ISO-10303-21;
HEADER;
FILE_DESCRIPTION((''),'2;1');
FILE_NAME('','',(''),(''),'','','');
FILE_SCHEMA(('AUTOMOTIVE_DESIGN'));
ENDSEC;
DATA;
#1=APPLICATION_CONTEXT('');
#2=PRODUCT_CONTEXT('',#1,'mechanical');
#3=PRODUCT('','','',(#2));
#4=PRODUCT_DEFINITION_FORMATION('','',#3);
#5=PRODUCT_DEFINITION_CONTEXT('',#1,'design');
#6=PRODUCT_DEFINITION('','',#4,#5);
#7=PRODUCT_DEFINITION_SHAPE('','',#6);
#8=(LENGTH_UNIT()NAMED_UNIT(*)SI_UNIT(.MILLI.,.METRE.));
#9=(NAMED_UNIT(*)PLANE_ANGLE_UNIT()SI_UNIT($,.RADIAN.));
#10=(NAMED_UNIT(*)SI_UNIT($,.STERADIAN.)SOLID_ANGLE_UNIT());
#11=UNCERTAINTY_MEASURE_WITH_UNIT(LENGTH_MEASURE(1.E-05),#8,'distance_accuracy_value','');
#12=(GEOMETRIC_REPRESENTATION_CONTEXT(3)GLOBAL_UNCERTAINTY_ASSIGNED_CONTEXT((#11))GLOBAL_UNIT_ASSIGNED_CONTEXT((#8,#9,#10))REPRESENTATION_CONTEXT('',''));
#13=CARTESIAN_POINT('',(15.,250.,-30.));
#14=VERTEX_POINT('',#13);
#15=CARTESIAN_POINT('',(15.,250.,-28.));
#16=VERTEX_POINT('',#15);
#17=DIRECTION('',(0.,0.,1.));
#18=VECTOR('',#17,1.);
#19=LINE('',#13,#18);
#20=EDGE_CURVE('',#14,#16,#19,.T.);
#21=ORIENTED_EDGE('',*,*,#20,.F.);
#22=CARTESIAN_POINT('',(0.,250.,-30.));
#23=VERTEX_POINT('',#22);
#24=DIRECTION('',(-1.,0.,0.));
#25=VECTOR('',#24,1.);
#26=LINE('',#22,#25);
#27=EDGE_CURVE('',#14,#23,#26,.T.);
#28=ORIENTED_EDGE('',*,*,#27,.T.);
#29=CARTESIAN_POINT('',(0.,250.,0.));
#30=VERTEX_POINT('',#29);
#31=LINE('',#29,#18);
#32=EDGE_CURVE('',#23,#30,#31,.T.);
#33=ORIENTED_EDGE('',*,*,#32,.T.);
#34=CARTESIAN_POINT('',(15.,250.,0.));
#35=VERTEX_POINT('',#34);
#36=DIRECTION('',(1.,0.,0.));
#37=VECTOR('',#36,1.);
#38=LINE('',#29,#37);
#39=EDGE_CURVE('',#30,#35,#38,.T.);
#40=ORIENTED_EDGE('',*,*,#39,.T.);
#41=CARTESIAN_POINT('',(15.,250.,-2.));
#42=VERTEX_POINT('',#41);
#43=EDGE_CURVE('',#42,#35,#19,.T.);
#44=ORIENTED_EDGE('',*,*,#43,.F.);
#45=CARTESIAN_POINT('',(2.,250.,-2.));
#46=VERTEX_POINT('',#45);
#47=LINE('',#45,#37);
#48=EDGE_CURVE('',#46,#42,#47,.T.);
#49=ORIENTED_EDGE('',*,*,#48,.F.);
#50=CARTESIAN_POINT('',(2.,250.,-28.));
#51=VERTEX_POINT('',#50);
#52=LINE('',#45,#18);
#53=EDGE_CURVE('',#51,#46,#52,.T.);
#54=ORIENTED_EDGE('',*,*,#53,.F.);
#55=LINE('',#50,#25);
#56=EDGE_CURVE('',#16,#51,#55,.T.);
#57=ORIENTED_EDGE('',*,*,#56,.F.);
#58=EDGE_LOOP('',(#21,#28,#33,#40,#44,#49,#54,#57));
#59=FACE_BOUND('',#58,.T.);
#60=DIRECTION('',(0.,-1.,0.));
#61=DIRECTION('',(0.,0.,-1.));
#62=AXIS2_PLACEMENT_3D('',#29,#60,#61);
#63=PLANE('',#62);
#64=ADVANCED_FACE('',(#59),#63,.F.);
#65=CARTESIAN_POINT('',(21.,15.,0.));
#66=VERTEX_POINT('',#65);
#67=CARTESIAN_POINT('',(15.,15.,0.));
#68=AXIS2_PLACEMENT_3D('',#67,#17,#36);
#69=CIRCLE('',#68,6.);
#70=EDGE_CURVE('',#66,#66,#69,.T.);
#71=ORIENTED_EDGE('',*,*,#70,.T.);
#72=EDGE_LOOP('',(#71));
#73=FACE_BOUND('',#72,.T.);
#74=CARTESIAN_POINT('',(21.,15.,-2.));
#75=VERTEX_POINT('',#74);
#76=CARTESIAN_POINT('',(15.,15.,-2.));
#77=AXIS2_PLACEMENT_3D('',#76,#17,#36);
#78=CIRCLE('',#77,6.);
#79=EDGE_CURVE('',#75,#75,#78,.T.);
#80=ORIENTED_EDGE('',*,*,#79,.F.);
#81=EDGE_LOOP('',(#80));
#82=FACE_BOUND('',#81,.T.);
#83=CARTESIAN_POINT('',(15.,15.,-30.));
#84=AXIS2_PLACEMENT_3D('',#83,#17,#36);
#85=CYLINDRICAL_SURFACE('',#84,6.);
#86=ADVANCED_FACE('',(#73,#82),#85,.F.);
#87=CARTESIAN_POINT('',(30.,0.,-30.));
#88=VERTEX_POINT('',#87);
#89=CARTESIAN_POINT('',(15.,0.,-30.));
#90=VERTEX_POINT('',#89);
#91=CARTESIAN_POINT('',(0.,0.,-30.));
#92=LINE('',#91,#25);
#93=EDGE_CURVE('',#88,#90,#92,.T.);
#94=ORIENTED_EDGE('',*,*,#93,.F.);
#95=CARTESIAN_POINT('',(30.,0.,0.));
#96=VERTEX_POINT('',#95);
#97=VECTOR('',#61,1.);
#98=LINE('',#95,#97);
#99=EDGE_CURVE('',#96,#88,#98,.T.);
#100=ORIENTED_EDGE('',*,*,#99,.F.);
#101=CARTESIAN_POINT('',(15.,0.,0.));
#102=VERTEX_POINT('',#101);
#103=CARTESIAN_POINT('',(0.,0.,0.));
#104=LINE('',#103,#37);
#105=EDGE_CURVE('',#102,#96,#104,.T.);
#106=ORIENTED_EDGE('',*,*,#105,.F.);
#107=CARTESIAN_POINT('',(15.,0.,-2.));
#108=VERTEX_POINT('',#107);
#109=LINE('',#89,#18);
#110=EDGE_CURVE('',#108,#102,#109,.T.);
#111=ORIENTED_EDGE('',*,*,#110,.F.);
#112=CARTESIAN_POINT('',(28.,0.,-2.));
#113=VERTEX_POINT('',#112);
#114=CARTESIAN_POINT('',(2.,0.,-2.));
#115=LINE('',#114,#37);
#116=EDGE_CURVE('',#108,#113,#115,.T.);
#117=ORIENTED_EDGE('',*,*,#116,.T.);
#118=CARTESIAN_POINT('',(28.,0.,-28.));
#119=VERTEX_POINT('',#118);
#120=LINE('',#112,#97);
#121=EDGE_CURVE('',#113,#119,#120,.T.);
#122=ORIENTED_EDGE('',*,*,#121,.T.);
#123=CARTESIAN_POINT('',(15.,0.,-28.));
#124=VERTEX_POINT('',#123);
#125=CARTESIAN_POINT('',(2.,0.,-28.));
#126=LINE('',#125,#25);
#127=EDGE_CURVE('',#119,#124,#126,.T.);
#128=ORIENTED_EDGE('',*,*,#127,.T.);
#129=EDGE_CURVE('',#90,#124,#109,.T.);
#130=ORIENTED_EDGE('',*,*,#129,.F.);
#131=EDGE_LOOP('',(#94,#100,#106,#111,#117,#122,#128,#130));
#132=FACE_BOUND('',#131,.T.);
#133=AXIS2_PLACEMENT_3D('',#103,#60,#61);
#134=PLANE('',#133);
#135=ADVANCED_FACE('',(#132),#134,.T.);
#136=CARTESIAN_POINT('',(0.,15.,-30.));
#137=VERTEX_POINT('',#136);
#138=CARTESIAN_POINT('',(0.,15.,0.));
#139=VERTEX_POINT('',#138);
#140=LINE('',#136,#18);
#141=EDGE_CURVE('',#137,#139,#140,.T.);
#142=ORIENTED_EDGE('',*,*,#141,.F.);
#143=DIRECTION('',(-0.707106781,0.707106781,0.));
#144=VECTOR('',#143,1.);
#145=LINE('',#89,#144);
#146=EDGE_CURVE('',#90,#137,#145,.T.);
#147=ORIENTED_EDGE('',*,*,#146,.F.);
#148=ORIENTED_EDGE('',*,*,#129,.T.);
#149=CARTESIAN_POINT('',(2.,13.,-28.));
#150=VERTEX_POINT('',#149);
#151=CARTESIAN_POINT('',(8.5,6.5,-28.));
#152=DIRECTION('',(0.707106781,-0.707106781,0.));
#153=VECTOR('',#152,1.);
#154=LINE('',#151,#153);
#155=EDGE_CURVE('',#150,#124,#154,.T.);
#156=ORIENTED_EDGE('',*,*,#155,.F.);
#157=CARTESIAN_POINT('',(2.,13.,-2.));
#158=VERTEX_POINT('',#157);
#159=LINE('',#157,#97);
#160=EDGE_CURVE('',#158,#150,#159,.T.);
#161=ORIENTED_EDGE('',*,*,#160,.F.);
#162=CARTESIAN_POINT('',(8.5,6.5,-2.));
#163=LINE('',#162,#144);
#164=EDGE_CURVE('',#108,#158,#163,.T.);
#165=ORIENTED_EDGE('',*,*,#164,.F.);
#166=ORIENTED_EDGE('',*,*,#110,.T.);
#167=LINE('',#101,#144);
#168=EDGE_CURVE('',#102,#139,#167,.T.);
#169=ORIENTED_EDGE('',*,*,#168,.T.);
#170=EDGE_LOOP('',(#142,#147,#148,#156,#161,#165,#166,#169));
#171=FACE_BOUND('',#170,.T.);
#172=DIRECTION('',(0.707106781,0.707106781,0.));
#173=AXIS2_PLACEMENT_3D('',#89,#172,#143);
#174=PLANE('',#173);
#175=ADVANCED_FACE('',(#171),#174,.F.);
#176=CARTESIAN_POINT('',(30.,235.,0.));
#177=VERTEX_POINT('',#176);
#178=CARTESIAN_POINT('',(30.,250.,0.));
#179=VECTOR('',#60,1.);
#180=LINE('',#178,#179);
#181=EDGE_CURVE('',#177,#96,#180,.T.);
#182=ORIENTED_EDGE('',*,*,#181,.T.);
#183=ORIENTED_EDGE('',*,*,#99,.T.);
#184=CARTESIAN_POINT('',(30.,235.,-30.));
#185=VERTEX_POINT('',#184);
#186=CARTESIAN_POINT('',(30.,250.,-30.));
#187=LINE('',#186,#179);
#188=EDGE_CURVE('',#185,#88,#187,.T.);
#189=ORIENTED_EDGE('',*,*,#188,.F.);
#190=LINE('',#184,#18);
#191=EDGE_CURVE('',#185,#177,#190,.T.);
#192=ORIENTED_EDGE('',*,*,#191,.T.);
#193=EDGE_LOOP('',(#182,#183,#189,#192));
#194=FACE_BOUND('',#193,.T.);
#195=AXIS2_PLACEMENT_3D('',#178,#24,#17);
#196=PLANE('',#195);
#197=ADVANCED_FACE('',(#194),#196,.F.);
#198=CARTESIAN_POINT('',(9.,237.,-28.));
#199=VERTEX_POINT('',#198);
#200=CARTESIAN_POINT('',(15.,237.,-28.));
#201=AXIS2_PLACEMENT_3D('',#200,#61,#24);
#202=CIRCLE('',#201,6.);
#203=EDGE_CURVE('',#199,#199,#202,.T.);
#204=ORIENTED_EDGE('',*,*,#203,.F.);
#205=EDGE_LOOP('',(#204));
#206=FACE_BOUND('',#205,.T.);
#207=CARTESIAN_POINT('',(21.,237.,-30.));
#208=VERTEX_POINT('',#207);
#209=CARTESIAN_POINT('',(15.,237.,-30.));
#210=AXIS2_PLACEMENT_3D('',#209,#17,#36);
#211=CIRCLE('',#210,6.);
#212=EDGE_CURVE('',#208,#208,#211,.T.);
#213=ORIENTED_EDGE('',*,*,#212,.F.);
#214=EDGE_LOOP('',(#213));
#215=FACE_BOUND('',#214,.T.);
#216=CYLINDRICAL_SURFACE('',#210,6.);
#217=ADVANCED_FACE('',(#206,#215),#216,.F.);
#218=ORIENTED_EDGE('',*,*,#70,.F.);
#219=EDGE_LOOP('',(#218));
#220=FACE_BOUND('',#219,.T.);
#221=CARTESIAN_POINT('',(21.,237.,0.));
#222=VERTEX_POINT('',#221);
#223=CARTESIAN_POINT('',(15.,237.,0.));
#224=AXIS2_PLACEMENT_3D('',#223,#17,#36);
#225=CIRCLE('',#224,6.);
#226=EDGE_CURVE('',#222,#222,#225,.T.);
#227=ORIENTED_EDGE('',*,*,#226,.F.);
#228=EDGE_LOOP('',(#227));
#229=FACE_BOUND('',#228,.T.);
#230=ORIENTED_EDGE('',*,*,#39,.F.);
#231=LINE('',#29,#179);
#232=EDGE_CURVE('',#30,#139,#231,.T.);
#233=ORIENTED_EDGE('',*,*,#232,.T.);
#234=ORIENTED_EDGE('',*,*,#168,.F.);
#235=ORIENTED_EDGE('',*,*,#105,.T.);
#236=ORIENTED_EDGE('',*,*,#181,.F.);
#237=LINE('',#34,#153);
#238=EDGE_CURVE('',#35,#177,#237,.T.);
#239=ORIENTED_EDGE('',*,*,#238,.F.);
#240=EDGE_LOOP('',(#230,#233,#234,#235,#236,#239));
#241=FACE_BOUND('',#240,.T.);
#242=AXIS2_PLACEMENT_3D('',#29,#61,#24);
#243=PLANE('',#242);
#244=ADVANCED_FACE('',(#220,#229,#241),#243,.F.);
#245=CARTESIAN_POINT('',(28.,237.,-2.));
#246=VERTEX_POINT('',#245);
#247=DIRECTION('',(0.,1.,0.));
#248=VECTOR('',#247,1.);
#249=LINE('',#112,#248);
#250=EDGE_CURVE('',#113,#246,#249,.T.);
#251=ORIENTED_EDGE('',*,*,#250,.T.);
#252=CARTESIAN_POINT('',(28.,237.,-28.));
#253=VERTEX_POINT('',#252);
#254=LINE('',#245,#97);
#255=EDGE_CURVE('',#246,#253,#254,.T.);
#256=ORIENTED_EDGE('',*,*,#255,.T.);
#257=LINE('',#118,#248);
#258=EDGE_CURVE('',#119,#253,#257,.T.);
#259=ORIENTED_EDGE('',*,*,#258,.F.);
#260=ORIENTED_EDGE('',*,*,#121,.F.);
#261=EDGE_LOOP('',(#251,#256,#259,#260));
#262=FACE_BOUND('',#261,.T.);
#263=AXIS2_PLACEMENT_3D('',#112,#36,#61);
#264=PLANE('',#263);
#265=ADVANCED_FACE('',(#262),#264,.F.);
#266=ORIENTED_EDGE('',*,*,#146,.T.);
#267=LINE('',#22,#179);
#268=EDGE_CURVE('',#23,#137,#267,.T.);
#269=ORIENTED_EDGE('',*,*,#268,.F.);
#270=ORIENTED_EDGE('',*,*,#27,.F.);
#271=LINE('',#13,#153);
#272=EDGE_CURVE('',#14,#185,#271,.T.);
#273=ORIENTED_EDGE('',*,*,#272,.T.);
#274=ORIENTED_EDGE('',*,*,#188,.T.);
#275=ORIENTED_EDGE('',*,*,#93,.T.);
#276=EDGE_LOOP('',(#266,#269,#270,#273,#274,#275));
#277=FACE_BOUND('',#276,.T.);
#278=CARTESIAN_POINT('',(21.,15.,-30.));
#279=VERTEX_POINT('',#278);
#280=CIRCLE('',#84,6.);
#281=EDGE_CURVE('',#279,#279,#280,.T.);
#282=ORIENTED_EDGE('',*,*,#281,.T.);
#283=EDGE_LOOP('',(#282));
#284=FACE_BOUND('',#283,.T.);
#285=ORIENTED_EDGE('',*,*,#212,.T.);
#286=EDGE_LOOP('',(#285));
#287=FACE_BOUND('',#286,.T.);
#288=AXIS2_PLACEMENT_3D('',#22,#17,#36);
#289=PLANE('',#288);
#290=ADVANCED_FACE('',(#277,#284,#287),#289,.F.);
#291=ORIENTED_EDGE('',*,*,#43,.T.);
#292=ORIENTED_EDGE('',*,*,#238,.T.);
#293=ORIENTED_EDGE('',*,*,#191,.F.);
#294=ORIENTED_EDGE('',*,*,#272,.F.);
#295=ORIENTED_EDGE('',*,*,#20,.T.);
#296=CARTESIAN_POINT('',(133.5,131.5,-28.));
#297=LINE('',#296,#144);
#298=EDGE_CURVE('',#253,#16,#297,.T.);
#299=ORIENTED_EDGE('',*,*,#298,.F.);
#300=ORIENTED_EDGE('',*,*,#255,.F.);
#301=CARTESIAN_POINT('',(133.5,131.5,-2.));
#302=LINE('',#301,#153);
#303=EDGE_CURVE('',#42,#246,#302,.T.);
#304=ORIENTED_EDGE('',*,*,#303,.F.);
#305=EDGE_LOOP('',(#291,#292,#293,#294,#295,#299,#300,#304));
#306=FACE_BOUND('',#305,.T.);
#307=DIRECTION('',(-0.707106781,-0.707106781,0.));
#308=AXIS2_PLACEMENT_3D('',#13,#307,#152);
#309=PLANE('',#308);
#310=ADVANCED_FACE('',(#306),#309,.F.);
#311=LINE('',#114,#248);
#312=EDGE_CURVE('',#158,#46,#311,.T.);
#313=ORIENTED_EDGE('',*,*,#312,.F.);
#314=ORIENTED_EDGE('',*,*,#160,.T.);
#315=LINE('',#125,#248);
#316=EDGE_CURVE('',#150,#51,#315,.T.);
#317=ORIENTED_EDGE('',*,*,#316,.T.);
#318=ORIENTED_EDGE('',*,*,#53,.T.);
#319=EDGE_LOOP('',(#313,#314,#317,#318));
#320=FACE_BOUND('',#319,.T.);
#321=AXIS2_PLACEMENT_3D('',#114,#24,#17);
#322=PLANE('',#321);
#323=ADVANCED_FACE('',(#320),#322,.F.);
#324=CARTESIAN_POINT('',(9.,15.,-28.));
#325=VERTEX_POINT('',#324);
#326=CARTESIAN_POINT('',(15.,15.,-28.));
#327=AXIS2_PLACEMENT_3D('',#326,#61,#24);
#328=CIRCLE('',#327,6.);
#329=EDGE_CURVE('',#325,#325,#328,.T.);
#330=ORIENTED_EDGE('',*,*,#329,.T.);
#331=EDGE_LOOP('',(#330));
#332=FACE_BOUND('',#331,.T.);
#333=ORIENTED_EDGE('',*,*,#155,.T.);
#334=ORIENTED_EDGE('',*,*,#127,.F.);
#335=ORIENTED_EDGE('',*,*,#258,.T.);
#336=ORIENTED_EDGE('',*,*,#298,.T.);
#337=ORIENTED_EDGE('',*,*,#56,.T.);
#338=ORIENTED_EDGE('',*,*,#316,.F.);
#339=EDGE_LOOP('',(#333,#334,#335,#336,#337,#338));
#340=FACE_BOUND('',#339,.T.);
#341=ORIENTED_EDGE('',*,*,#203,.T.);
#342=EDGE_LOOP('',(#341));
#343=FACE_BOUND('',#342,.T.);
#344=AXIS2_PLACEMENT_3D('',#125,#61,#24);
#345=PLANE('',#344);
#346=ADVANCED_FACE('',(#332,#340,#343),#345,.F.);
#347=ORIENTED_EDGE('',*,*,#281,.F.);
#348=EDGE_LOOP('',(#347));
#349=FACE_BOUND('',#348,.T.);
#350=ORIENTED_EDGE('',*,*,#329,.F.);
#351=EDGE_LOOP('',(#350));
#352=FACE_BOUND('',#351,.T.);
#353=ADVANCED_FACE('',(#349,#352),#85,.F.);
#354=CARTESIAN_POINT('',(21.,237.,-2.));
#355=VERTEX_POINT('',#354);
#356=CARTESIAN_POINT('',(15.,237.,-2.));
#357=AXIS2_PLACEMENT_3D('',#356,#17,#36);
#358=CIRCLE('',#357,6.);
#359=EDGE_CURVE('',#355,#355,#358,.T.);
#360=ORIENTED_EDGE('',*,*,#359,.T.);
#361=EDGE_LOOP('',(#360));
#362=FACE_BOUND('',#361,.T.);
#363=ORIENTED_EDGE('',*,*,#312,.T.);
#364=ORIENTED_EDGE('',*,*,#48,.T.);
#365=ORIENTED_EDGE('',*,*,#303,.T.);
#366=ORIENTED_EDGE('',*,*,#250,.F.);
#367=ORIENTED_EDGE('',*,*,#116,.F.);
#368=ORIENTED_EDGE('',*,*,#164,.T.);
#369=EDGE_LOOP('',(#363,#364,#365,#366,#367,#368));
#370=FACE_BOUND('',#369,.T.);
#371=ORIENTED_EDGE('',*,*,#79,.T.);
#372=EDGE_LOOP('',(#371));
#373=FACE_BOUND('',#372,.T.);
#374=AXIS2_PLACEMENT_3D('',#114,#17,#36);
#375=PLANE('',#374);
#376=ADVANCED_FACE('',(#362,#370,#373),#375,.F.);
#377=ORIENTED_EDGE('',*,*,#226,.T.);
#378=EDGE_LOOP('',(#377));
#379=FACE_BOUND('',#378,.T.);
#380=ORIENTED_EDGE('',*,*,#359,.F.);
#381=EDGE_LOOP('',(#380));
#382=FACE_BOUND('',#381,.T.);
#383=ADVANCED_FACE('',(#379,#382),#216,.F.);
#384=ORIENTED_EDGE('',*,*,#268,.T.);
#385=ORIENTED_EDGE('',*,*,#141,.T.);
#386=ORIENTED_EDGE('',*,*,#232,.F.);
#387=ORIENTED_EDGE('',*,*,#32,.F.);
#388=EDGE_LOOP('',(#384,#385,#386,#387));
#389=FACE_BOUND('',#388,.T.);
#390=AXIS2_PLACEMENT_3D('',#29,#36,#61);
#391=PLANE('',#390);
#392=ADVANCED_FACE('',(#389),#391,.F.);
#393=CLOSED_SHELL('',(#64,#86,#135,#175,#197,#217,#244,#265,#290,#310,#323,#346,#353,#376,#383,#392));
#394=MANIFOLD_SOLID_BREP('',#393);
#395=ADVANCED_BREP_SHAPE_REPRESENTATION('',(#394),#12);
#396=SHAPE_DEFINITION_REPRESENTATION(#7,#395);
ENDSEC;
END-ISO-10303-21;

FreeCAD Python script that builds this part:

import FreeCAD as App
import Part
import Sketcher


def add_polygon(sketch, points):
    """Adds a closed chain of lines whose ends are joined by coincident constraints."""
    first, n = sketch.GeometryCount, len(points)
    for a, b in zip(points, points[1:] + points[:1]):
        sketch.addGeometry(Part.LineSegment(App.Vector(*a, 0), App.Vector(*b, 0)), False)
    for i in range(n):
        sketch.addConstraint(Sketcher.Constraint("Coincident", first + i, 2, first + (i + 1) % n, 1))

doc = App.newDocument("Part")
body = doc.addObject("PartDesign::Body", "Body")

sketch1 = body.newObject("Sketcher::SketchObject", "Sketch")
sketch1.AttachmentSupport = (doc.getObject("XZ_Plane"), [""])
sketch1.MapMode = "FlatFace"
add_polygon(sketch1, [(0, -30), (0, 0), (30, 0), (30, -30)])
sketch1.addConstraint([
    Sketcher.Constraint("Vertical", 0),
    Sketcher.Constraint("Horizontal", 1),
    Sketcher.Constraint("Vertical", 2),
    Sketcher.Constraint("Horizontal", 3),
    Sketcher.Constraint("Coincident", 0, 2, -1, 1),
    Sketcher.Constraint("Equal", 3, 0),
    Sketcher.Constraint("DistanceX", 1, 1, 1, 2, 30.0),
])
pad1 = body.newObject("PartDesign::Pad", "Pad")
pad1.Profile = sketch1
pad1.Length = 250
pad1.Reversed = True

sketch2 = body.newObject("Sketcher::SketchObject", "Sketch001")
sketch2.AttachmentSupport = (doc.getObject("XZ_Plane"), [""])
sketch2.MapMode = "FlatFace"
sketch2.AttachmentOffset = App.Placement(App.Vector(0, 0, -250), App.Rotation())
add_polygon(sketch2, [(2, -28), (2, -2), (28, -2), (28, -28)])
sketch2.addConstraint([
    Sketcher.Constraint("Vertical", 0),
    Sketcher.Constraint("Horizontal", 1),
    Sketcher.Constraint("Vertical", 2),
    Sketcher.Constraint("Horizontal", 3),
    Sketcher.Constraint("Equal", 3, 0),
    Sketcher.Constraint("DistanceX", 1, 1, 1, 2, 26.0),
    Sketcher.Constraint("DistanceX", -1, 1, 0, 2, 2.0),
    Sketcher.Constraint("DistanceY", 0, 2, -1, 1, 2.0),
])
pocket1 = body.newObject("PartDesign::Pocket", "Pocket")
pocket1.Profile = sketch2
pocket1.Type = "ThroughAll"
pocket1.Reversed = True

sketch3 = body.newObject("Sketcher::SketchObject", "Sketch002")
sketch3.AttachmentSupport = (doc.getObject("XY_Plane"), [""])
sketch3.MapMode = "FlatFace"
sketch3.addGeometry(Part.Circle(App.Vector(15, 15, 0), App.Vector(0, 0, 1), 6), False)
sketch3.addConstraint([
    Sketcher.Constraint("Diameter", 0, 12.0),
    Sketcher.Constraint("DistanceX", -1, 1, 0, 3, 15.0),
    Sketcher.Constraint("DistanceY", -1, 1, 0, 3, 15.0),
])
pocket2 = body.newObject("PartDesign::Pocket", "Pocket001")
pocket2.Profile = sketch3
pocket2.Type = "ThroughAll"

sketch4 = body.newObject("Sketcher::SketchObject", "Sketch003")
sketch4.AttachmentSupport = (doc.getObject("XY_Plane"), [""])
sketch4.MapMode = "FlatFace"
sketch4.addGeometry(Part.Circle(App.Vector(15, 237, 0), App.Vector(0, 0, 1), 6), False)
sketch4.addConstraint([
    Sketcher.Constraint("Diameter", 0, 12.0),
    Sketcher.Constraint("DistanceX", -1, 1, 0, 3, 15.0),
    Sketcher.Constraint("DistanceY", -1, 1, 0, 3, 237.0),
])
pocket3 = body.newObject("PartDesign::Pocket", "Pocket002")
pocket3.Profile = sketch4
pocket3.Type = "ThroughAll"

sketch5 = body.newObject("Sketcher::SketchObject", "Sketch004")
sketch5.AttachmentSupport = (doc.getObject("XY_Plane"), [""])
sketch5.MapMode = "FlatFace"
add_polygon(sketch5, [(15, 250), (30, 235), (30, 250)])
sketch5.addConstraint([
    Sketcher.Constraint("Vertical", 1),
    Sketcher.Constraint("Horizontal", 2),
    Sketcher.Constraint("Equal", 2, 1),
    Sketcher.Constraint("DistanceX", 2, 2, 2, 1, 15.0),
    Sketcher.Constraint("DistanceX", -1, 1, 0, 2, 30.0),
    Sketcher.Constraint("DistanceY", -1, 1, 0, 2, 235.0),
])
pocket4 = body.newObject("PartDesign::Pocket", "Pocket003")
pocket4.Profile = sketch5
pocket4.Type = "ThroughAll"

sketch6 = body.newObject("Sketcher::SketchObject", "Sketch005")
sketch6.AttachmentSupport = (doc.getObject("XY_Plane"), [""])
sketch6.MapMode = "FlatFace"
add_polygon(sketch6, [(15, 0), (0, 15), (0, 0)])
sketch6.addConstraint([
    Sketcher.Constraint("Vertical", 1),
    Sketcher.Constraint("Horizontal", 2),
    Sketcher.Constraint("Coincident", 1, 2, -1, 1),
    Sketcher.Constraint("Equal", 2, 1),
    Sketcher.Constraint("DistanceX", 2, 1, 2, 2, 15.0),
])
pocket5 = body.newObject("PartDesign::Pocket", "Pocket004")
pocket5.Profile = sketch6
pocket5.Type = "ThroughAll"

doc.recompute()
